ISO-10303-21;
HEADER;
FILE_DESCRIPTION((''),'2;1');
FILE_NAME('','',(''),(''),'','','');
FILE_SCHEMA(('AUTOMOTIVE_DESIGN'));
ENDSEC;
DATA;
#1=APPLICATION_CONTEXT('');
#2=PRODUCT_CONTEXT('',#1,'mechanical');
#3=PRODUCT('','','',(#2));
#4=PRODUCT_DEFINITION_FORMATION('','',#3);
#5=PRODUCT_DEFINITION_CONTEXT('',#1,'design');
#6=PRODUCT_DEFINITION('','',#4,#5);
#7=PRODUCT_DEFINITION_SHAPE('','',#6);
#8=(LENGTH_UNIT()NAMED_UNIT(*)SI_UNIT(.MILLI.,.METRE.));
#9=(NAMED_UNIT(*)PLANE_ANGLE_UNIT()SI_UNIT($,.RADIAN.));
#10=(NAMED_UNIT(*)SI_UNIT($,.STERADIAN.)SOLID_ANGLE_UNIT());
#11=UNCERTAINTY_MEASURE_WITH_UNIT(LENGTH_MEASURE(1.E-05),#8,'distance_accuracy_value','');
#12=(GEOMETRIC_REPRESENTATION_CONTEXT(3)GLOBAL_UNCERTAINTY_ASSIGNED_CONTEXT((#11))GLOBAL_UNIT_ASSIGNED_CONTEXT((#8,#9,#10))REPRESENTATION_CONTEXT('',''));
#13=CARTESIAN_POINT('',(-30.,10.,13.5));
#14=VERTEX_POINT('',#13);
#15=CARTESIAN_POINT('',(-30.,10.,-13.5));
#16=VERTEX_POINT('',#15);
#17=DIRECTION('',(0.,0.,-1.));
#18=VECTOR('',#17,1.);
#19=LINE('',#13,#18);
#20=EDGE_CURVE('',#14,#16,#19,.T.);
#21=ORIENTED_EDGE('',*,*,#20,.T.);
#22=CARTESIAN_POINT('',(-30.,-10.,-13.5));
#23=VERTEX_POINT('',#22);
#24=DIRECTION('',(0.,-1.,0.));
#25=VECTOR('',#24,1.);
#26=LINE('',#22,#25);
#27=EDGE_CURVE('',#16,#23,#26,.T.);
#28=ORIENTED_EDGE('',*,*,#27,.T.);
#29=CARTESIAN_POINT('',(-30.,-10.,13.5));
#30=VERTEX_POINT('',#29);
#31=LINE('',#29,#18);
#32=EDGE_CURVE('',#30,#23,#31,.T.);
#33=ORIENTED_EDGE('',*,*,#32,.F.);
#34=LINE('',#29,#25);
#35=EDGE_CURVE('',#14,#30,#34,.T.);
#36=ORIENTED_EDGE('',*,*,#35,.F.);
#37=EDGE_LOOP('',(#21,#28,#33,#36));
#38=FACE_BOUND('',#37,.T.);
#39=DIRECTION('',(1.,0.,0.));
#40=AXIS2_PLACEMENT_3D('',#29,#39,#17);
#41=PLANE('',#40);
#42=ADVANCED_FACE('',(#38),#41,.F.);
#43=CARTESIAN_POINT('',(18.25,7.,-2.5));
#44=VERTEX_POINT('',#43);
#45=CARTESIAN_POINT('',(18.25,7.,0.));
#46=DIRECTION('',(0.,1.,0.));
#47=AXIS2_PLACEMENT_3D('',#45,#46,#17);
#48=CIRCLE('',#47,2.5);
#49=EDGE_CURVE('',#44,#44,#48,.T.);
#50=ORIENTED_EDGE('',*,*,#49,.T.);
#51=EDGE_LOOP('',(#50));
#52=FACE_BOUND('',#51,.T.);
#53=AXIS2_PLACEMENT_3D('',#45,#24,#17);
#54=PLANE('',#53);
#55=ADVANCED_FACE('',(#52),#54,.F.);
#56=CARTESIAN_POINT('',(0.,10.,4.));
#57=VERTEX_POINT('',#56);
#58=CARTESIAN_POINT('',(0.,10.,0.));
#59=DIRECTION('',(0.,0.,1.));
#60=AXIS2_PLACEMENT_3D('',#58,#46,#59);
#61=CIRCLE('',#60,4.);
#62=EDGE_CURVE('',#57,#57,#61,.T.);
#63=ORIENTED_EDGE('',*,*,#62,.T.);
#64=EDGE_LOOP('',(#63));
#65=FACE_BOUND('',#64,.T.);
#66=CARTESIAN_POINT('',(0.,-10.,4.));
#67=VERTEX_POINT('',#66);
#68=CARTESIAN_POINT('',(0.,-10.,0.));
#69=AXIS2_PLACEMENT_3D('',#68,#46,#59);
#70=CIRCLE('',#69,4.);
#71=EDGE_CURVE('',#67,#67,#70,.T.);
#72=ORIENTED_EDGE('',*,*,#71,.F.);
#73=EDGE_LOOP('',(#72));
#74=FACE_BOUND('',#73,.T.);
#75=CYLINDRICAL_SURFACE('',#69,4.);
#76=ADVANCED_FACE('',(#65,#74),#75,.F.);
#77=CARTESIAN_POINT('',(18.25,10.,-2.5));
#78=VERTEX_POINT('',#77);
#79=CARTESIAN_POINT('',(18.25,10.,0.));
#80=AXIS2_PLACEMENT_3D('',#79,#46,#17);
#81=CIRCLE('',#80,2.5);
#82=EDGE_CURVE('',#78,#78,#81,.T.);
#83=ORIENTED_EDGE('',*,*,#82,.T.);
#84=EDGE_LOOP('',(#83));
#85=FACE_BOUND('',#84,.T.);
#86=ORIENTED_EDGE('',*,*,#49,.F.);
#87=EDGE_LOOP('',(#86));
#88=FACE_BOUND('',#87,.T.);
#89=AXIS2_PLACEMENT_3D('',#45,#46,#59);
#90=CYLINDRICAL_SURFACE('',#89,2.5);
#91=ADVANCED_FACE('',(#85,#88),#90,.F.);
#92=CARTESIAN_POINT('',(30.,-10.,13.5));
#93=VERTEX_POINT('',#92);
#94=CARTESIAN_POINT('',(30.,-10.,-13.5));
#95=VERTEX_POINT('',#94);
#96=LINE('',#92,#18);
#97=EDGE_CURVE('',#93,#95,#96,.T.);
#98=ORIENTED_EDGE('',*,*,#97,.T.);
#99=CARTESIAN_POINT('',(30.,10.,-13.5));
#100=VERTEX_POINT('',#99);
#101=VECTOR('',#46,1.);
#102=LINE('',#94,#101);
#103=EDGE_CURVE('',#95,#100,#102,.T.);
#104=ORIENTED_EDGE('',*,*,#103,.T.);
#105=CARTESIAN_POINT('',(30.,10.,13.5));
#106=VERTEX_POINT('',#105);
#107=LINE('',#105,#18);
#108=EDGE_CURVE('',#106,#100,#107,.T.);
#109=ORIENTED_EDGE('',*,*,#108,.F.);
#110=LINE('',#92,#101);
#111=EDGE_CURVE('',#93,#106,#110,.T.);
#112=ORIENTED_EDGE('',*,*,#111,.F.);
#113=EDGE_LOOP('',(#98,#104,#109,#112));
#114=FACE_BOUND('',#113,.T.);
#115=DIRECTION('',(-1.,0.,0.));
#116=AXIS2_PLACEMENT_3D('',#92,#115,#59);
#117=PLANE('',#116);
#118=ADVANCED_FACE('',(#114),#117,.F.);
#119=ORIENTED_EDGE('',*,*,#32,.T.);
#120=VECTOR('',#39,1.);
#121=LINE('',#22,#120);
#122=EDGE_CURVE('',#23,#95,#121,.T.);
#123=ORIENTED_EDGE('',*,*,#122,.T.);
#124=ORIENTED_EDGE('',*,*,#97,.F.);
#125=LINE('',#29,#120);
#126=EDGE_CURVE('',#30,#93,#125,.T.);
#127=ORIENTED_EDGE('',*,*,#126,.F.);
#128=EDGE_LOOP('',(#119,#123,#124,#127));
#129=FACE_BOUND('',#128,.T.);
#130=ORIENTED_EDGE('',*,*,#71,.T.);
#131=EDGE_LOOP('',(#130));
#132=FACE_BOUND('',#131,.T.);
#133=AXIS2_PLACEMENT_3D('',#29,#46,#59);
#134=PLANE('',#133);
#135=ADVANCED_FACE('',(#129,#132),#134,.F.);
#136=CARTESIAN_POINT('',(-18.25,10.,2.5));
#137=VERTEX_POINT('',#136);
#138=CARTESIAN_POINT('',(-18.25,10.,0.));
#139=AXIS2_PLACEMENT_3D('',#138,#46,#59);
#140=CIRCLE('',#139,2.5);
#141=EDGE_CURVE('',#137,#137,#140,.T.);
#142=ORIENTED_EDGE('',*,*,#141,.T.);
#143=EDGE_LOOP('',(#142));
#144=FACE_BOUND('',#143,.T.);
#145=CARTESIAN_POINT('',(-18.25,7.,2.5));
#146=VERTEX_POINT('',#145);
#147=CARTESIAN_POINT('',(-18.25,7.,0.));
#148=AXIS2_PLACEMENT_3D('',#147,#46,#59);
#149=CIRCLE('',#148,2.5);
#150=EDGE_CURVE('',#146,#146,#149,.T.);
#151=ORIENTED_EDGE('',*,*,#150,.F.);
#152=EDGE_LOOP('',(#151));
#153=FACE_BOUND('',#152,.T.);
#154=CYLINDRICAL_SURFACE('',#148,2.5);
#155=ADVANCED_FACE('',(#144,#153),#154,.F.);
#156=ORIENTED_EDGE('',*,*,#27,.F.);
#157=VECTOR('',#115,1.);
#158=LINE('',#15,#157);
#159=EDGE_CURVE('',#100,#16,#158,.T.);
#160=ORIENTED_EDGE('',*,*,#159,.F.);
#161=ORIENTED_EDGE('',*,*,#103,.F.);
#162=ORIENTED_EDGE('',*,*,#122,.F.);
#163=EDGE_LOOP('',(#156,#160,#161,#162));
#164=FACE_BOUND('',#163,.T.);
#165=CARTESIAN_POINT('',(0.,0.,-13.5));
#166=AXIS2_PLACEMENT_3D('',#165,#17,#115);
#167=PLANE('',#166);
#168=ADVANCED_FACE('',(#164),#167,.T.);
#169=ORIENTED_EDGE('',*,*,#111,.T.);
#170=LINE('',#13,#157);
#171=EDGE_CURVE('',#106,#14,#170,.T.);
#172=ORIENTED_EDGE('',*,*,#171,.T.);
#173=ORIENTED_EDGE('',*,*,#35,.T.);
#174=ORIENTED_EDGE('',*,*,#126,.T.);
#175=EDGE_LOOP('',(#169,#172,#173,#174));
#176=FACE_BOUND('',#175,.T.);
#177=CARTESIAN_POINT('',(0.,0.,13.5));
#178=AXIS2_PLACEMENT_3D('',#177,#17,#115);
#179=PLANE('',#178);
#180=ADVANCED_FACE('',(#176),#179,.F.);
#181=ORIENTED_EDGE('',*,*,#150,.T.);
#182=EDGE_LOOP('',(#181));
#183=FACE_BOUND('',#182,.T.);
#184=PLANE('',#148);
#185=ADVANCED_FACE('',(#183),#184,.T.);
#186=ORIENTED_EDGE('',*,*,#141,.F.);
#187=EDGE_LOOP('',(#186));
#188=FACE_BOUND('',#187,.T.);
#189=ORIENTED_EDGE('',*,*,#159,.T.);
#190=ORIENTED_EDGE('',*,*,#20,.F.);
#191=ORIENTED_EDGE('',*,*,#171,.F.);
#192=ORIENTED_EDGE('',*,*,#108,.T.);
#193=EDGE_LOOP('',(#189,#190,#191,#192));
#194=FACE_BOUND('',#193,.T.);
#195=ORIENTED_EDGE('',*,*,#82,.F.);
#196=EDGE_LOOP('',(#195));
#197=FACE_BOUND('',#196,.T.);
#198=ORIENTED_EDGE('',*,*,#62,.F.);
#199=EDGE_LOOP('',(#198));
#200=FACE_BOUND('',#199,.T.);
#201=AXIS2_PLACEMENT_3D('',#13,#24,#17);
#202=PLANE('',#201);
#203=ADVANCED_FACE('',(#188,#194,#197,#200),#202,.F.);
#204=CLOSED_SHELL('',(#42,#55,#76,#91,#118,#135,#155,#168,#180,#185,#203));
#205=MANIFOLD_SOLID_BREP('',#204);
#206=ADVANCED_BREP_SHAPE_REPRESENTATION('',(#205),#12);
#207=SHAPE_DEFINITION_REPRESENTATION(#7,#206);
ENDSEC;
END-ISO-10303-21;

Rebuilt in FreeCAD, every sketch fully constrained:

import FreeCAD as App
import Part
import Sketcher
from FreeCAD import Vector


def add_polygon(sketch, points):
    """Adds a closed chain of lines whose ends are joined by coincident constraints."""
    first, n = sketch.GeometryCount, len(points)
    for a, b in zip(points, points[1:] + points[:1]):
        sketch.addGeometry(Part.LineSegment(App.Vector(*a, 0), App.Vector(*b, 0)), False)
    for i in range(n):
        sketch.addConstraint(Sketcher.Constraint("Coincident", first + i, 2, first + (i + 1) % n, 1))

doc = App.newDocument("Part")
body = doc.addObject("PartDesign::Body", "Body")

# Sketch on XY plane
sketch1 = body.newObject("Sketcher::SketchObject", "Sketch")
sketch1.AttachmentSupport = (doc.getObject("XY_Plane"), [""])
sketch1.MapMode = "FlatFace"
add_polygon(sketch1, [(-30, 10), (-30, -10), (30, -10), (30, 10)])  # lines 0-3
sketch1.addConstraint(Sketcher.Constraint("Vertical", 0))
sketch1.addConstraint(Sketcher.Constraint("Horizontal", 1))
sketch1.addConstraint(Sketcher.Constraint("Vertical", 2))
sketch1.addConstraint(Sketcher.Constraint("Horizontal", 3))
sketch1.addConstraint(Sketcher.Constraint("Symmetric", 0, 2, 2, 2, -1, 1))
sketch1.addConstraint(Sketcher.Constraint("DistanceX", 1, 1, 1, 2, 60.0))
sketch1.addConstraint(Sketcher.Constraint("DistanceY", 0, 2, 0, 1, 20.0))
pad1 = body.newObject("PartDesign::Pad", "Pad")
pad1.Profile = sketch1
pad1.Length = 27
pad1.Midplane = True

# Sketch on XZ plane
sketch2 = body.newObject("Sketcher::SketchObject", "Sketch001")
sketch2.AttachmentSupport = (doc.getObject("XZ_Plane"), [""])
sketch2.MapMode = "FlatFace"
sketch2.AttachmentOffset = App.Placement(Vector(0, 0, -10), App.Rotation())
sketch2.addGeometry(Part.Circle(Vector(-18.2, 0, 0), Vector(0, 0, 1), 2.5), False)
sketch2.addGeometry(Part.Circle(Vector(18.2, 0, 0), Vector(0, 0, 1), 2.5), False)
sketch2.addConstraint(Sketcher.Constraint("Equal", 0, 1))
sketch2.addConstraint(Sketcher.Constraint("Symmetric", 0, 3, 1, 3, -1, 1))
sketch2.addConstraint(Sketcher.Constraint("PointOnObject", 0, 3, -1))
sketch2.addConstraint(Sketcher.Constraint("Diameter", 0, 5.0))
sketch2.addConstraint(Sketcher.Constraint("DistanceX", 0, 3, 1, 3, 36.5))
pocket1 = body.newObject("PartDesign::Pocket", "Pocket")
pocket1.Profile = sketch2
pocket1.Length = 3
pocket1.Reversed = True

# Sketch on XZ plane
sketch3 = body.newObject("Sketcher::SketchObject", "Sketch002")
sketch3.AttachmentSupport = (doc.getObject("XZ_Plane"), [""])
sketch3.MapMode = "FlatFace"
sketch3.AttachmentOffset = App.Placement(Vector(0, 0, -10), App.Rotation())
sketch3.addGeometry(Part.Circle(Vector(0, 0, 0), Vector(0, 0, 1), 4), False)
sketch3.addConstraint(Sketcher.Constraint("Coincident", 0, 3, -1, 1))
sketch3.addConstraint(Sketcher.Constraint("Diameter", 0, 8.0))
pocket2 = body.newObject("PartDesign::Pocket", "Pocket001")
pocket2.Profile = sketch3
pocket2.Type = "ThroughAll"
pocket2.Reversed = True

doc.recompute()
